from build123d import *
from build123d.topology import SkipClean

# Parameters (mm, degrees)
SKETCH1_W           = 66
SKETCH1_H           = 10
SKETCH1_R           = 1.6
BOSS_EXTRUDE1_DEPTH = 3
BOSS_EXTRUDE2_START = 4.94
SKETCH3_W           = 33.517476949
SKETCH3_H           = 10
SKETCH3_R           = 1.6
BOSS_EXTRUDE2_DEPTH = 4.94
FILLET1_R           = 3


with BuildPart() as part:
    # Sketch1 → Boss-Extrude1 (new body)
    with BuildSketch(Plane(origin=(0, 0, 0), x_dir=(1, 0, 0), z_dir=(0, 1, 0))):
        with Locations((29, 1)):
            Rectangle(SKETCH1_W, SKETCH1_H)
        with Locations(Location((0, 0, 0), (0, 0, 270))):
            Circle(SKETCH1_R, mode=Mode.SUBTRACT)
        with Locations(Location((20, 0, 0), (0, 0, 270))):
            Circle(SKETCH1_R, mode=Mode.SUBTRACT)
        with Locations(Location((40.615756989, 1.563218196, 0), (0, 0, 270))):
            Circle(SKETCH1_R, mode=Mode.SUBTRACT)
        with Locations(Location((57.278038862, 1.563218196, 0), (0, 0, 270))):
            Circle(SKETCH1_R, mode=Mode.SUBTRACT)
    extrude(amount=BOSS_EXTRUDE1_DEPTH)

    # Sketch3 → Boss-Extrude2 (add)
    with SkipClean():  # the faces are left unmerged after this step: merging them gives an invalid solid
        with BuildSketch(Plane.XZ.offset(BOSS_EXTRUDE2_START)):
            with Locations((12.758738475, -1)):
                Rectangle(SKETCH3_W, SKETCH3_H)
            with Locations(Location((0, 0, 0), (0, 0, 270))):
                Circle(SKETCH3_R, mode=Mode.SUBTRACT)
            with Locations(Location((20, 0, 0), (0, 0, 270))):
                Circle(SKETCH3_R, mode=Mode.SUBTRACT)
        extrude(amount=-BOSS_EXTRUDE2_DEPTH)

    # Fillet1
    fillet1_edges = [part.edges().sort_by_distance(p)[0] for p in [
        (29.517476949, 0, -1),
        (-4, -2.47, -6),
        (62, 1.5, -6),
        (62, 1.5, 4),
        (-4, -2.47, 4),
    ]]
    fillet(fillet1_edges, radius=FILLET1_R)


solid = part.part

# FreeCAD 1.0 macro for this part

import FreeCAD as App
import Part
import Sketcher

V = App.Vector


def edges_at(feature, points):
    """Names of the edges that pass closest to the given points."""
    edges = feature.Shape.Edges
    near = lambda p: min(range(len(edges)), key=lambda i: edges[i].distToShape(Part.Vertex(*p))[0])
    return sorted({f"Edge{near(p) + 1}" for p in points})


def add_polygon(sketch, points):
    """Adds a closed chain of lines whose ends are joined by coincident constraints."""
    first, n = sketch.GeometryCount, len(points)
    for a, b in zip(points, points[1:] + points[:1]):
        sketch.addGeometry(Part.LineSegment(App.Vector(*a, 0), App.Vector(*b, 0)), False)
    for i in range(n):
        sketch.addConstraint(Sketcher.Constraint("Coincident", first + i, 2, first + (i + 1) % n, 1))

doc = App.newDocument("Part")
body = doc.addObject("PartDesign::Body", "Body")

# Sketch on XZ plane
sketch1 = doc.addObject("Sketcher::SketchObject", "Sketch")
body.addObject(sketch1)
sketch1.AttachmentSupport = (doc.XZ_Plane, [""])
sketch1.MapMode = "FlatFace"
add_polygon(sketch1, [(-4, -6), (-4, 4), (62, 4), (62, -6)])  # lines 0-3
sketch1.addGeometry(Part.Circle(V(0, 0, 0), V(0, 0, 1), 1.6), False)  # 4
sketch1.addGeometry(Part.Circle(V(20, 0, 0), V(0, 0, 1), 1.6), False)  # 5
sketch1.addGeometry(Part.Circle(V(40.6, -1.6, 0), V(0, 0, 1), 1.6), False)  # 6
sketch1.addGeometry(Part.Circle(V(57.3, -1.6, 0), V(0, 0, 1), 1.6), False)  # 7
sketch1.addConstraint(Sketcher.Constraint("Vertical", 0))
sketch1.addConstraint(Sketcher.Constraint("Horizontal", 1))
sketch1.addConstraint(Sketcher.Constraint("Vertical", 2))
sketch1.addConstraint(Sketcher.Constraint("Horizontal", 3))
sketch1.addConstraint(Sketcher.Constraint("Coincident", 4, 3, -1, 1))
sketch1.addConstraint(Sketcher.Constraint("Equal", 4, 5))
sketch1.addConstraint(Sketcher.Constraint("Equal", 5, 6))
sketch1.addConstraint(Sketcher.Constraint("Equal", 6, 7))
sketch1.addConstraint(Sketcher.Constraint("PointOnObject", 5, 3, -1))
sketch1.addConstraint(Sketcher.Constraint("Horizontal", 6, 3, 7, 3))
sketch1.addConstraint(Sketcher.Constraint("Diameter", 4, 3.2))
sketch1.addConstraint(Sketcher.Constraint("DistanceX", 1, 1, 1, 2, 66.0))
sketch1.addConstraint(Sketcher.Constraint("DistanceY", 0, 1, 0, 2, 10.0))
sketch1.addConstraint(Sketcher.Constraint("DistanceX", -1, 1, 5, 3, 20.0))
sketch1.addConstraint(Sketcher.Constraint("DistanceX", 0, 2, -1, 1, 4.0))
sketch1.addConstraint(Sketcher.Constraint("DistanceY", -1, 1, 0, 2, 4.0))
sketch1.addConstraint(Sketcher.Constraint("DistanceY", 6, 3, -1, 1, 1.563218))
sketch1.addConstraint(Sketcher.Constraint("DistanceX", -1, 1, 7, 3, 57.278039))
sketch1.addConstraint(Sketcher.Constraint("DistanceX", 6, 3, 7, 3, 16.662282))
pad1 = doc.addObject("PartDesign::Pad", "Pad")
body.addObject(pad1)
pad1.Profile = sketch1
pad1.Length = 3
pad1.Reversed = True

# Sketch on XZ plane
sketch2 = doc.addObject("Sketcher::SketchObject", "Sketch001")
body.addObject(sketch2)
sketch2.AttachmentSupport = (doc.XZ_Plane, [""])
sketch2.MapMode = "FlatFace"
sketch2.AttachmentOffset = App.Placement(V(0, 0, 4.94), App.Rotation())
add_polygon(sketch2, [(-4, 4), (-4, -6), (29.5, -6), (29.5, 4)])  # lines 0-3
sketch2.addGeometry(Part.Circle(V(0, 0, 0), V(0, 0, 1), 1.6), False)  # 4
sketch2.addGeometry(Part.Circle(V(20, 0, 0), V(0, 0, 1), 1.6), False)  # 5
sketch2.addConstraint(Sketcher.Constraint("Vertical", 0))
sketch2.addConstraint(Sketcher.Constraint("Horizontal", 1))
sketch2.addConstraint(Sketcher.Constraint("Vertical", 2))
sketch2.addConstraint(Sketcher.Constraint("Horizontal", 3))
sketch2.addConstraint(Sketcher.Constraint("Coincident", 4, 3, -1, 1))
sketch2.addConstraint(Sketcher.Constraint("Equal", 4, 5))
sketch2.addConstraint(Sketcher.Constraint("PointOnObject", 5, 3, -1))
sketch2.addConstraint(Sketcher.Constraint("Diameter", 4, 3.2))
sketch2.addConstraint(Sketcher.Constraint("DistanceY", 0, 2, 0, 1, 10.0))
sketch2.addConstraint(Sketcher.Constraint("DistanceX", -1, 1, 5, 3, 20.0))
sketch2.addConstraint(Sketcher.Constraint("DistanceX", 0, 2, -1, 1, 4.0))
sketch2.addConstraint(Sketcher.Constraint("DistanceY", 0, 2, -1, 1, 6.0))
sketch2.addConstraint(Sketcher.Constraint("DistanceX", 1, 1, 1, 2, 33.517477))
pad2 = doc.addObject("PartDesign::Pad", "Pad001")
body.addObject(pad2)
pad2.Profile = sketch2
pad2.Length = 4.94
pad2.Reversed = True
doc.recompute()

fillet = doc.addObject("PartDesign::Fillet", "Fillet")
body.addObject(fillet)
fillet.Base = (pad2, edges_at(pad2, [
    (29.517, 0, -1),
    (-4, -2.47, -6),
    (62, 1.5, -6),
    (62, 1.5, 4),
    (-4, -2.47, 4),
]))
fillet.Radius = 3

doc.recompute()
